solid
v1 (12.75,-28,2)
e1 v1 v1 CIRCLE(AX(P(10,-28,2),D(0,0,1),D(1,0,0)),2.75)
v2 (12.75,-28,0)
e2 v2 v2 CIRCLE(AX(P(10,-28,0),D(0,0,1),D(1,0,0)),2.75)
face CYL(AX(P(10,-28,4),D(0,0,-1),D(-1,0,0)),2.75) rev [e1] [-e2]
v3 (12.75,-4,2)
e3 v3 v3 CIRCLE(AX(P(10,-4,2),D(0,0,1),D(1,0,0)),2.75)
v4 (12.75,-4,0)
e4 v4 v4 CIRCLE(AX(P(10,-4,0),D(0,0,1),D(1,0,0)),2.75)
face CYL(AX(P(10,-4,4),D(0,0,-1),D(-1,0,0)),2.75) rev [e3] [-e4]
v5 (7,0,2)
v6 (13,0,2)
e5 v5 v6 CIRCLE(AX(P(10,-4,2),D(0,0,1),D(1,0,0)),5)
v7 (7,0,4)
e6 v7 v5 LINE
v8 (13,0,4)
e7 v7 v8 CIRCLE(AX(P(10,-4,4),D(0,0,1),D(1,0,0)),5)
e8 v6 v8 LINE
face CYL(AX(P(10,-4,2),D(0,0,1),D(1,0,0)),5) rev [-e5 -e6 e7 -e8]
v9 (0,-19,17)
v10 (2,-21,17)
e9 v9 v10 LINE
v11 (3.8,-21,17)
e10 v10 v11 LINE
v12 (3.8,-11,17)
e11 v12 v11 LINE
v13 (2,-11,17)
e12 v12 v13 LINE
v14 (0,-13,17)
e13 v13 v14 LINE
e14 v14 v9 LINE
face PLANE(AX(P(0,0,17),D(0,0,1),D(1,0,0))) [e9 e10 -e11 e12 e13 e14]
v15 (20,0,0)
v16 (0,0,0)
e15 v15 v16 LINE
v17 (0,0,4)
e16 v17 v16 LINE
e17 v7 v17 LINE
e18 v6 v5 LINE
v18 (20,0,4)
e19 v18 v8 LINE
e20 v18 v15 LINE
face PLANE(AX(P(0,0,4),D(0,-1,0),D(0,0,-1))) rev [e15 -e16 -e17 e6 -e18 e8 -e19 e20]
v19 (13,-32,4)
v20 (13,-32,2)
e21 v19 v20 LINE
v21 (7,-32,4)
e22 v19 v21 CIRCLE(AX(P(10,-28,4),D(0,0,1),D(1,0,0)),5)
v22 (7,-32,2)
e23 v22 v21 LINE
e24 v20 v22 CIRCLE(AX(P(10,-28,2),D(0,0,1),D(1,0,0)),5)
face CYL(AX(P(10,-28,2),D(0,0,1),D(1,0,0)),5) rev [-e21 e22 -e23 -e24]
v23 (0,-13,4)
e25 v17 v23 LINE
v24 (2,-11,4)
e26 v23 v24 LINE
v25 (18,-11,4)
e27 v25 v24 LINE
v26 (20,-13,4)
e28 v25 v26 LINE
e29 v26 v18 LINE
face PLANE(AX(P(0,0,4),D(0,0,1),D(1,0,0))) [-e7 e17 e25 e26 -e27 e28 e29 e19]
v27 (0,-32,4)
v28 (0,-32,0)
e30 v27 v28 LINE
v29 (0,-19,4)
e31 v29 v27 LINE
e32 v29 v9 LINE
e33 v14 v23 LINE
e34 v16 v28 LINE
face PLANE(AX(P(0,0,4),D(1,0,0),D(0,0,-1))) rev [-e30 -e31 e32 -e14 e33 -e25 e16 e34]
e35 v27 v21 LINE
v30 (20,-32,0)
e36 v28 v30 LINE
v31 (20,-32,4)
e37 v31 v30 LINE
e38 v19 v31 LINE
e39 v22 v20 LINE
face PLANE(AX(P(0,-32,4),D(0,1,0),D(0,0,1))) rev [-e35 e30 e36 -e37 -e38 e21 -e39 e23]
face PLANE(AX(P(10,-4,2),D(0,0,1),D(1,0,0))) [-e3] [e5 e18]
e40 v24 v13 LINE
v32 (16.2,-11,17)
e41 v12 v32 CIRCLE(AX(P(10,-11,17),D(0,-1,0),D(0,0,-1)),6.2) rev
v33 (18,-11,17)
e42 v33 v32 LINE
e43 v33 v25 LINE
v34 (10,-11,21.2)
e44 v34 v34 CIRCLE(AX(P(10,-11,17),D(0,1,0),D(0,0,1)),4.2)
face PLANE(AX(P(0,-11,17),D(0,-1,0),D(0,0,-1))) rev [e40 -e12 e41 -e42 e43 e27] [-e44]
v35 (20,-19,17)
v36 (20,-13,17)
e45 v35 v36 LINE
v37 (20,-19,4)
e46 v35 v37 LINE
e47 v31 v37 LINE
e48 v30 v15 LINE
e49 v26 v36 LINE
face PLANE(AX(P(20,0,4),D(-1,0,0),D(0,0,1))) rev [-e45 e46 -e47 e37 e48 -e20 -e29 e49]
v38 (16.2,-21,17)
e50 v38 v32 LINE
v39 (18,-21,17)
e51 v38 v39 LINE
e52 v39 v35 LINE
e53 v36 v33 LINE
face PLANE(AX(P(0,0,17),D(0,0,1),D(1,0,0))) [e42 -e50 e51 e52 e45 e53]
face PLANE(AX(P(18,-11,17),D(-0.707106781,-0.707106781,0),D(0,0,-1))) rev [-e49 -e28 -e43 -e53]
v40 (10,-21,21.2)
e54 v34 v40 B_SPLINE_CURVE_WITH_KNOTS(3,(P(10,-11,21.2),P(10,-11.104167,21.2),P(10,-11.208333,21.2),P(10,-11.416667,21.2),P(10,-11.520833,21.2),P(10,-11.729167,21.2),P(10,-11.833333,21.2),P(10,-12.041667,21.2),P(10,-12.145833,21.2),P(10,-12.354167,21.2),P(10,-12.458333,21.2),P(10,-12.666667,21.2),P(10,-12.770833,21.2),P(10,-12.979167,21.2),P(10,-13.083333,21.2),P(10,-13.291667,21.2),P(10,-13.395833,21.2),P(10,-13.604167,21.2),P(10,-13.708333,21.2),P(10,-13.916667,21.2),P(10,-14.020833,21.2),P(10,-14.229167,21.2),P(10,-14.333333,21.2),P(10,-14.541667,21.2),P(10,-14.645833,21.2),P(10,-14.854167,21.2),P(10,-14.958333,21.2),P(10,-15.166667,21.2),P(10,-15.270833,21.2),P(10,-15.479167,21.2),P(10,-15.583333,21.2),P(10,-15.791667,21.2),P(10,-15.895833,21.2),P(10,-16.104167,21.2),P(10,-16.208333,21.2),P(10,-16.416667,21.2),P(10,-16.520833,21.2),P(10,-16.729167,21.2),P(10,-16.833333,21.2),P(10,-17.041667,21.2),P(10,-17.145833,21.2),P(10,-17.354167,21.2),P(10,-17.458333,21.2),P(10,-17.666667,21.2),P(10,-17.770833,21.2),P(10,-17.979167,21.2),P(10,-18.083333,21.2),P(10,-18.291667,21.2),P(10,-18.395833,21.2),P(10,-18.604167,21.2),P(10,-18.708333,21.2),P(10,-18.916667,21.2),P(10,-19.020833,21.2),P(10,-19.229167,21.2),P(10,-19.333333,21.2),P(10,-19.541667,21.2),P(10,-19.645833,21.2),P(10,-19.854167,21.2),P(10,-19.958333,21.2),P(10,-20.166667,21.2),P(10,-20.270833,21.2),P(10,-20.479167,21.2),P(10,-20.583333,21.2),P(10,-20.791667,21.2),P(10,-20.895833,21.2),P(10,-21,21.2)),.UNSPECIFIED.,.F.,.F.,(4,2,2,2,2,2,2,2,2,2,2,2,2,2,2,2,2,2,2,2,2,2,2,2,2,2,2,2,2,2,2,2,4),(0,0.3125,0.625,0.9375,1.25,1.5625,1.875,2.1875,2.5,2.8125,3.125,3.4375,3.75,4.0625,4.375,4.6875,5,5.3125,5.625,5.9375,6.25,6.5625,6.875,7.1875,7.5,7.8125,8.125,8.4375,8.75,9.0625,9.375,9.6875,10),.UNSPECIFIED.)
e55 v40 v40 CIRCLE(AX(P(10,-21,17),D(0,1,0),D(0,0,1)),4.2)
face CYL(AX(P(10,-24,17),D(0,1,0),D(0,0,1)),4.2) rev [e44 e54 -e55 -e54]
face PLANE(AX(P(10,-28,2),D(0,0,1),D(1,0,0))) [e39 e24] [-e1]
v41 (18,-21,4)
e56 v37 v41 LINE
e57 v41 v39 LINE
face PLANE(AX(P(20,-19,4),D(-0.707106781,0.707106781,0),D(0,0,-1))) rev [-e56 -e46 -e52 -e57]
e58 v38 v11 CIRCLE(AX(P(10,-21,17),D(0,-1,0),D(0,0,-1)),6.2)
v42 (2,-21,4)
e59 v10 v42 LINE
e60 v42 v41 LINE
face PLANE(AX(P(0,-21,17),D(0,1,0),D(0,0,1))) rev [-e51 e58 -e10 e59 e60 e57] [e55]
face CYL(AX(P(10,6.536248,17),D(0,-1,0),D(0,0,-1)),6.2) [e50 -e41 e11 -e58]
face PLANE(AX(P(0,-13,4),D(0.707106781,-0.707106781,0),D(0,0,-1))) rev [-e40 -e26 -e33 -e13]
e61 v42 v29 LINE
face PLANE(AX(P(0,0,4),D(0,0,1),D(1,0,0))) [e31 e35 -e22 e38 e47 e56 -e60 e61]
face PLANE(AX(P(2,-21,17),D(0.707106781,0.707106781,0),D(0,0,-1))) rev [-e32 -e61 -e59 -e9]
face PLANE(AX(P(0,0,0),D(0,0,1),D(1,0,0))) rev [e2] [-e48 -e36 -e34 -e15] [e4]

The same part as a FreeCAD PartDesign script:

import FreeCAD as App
import Part
import Sketcher

V = App.Vector
Q = App.Units.Quantity


def edges_at(feature, points):
    """Names of the edges that pass closest to the given points."""
    edges = feature.Shape.Edges
    near = lambda p: min(range(len(edges)), key=lambda i: edges[i].distToShape(Part.Vertex(*p))[0])
    return sorted({f"Edge{near(p) + 1}" for p in points})


def add_polygon(sketch, points):
    """Adds a closed chain of lines whose ends are joined by coincident constraints."""
    first, n = sketch.GeometryCount, len(points)
    for a, b in zip(points, points[1:] + points[:1]):
        sketch.addGeometry(Part.LineSegment(App.Vector(*a, 0), App.Vector(*b, 0)), False)
    for i in range(n):
        sketch.addConstraint(Sketcher.Constraint("Coincident", first + i, 2, first + (i + 1) % n, 1))

doc = App.newDocument("Part")
params = doc.addObject("Spreadsheet::Sheet", "Params")
for row, (alias, value) in enumerate([
    ("sketch1_diameter", "5.5 mm"),
    ("sketch1_width", "20 mm"),
    ("sketch1_height", "32 mm"),
    ("pad1_length", "4 mm"),
    ("sketch2_width", "20 mm"),
    ("sketch2_height", "10 mm"),
    ("pad2_length", "13 mm"),
    ("sketch3_diameter", "12.4 mm"),
    ("pad3_length", "10 mm"),
    ("sketch4_diameter", "8.4 mm"),
    ("pocket1_length", "13 mm"),
    ("chamfer_size", "2 mm"),
    ("sketch5_diameter", "10 mm"),
    ("pocket2_length", "2 mm"),
], start=1):
    params.set(f"A{row}", alias)
    params.set(f"B{row}", "=" + value)
    params.setAlias(f"B{row}", alias)

body = doc.addObject("PartDesign::Body", "Body")

sketch1 = body.newObject("Sketcher::SketchObject", "Sketch")
sketch1.AttachmentSupport = (doc.getObject("XY_Plane"), [""])
sketch1.MapMode = "FlatFace"
add_polygon(sketch1, [(0, 0), (0, -32), (20, -32), (20, 0)])
sketch1.addGeometry(Part.Circle(V(10, -28, 0), V(0, 0, 1), 2.75), False)
sketch1.addGeometry(Part.Circle(V(10, -4, 0), V(0, 0, 1), 2.75), False)
sketch1.addConstraint([
    Sketcher.Constraint("Vertical", 0),
    Sketcher.Constraint("Horizontal", 1),
    Sketcher.Constraint("Vertical", 2),
    Sketcher.Constraint("Horizontal", 3),
    Sketcher.Constraint("Coincident", 3, 2, -1, 1),
    Sketcher.Constraint("Equal", 4, 5),
    Sketcher.Constraint("Vertical", 4, 3, 5, 3),
    Sketcher.Constraint("Diameter", 4, Q("5.5 mm")),
    Sketcher.Constraint("DistanceX", 1, 1, 1, 2, Q("20 mm")),
    Sketcher.Constraint("DistanceY", 0, 2, 0, 1, Q("32 mm")),
    Sketcher.Constraint("DistanceX", -1, 1, 4, 3, Q("10 mm")),
    Sketcher.Constraint("DistanceY", 4, 3, -1, 1, Q("28 mm")),
    Sketcher.Constraint("DistanceY", 5, 3, -1, 1, Q("4 mm")),
])
sketch1.setExpression("Constraints[11]", "Params.sketch1_diameter")
sketch1.setExpression("Constraints[12]", "Params.sketch1_width")
sketch1.setExpression("Constraints[13]", "Params.sketch1_height")
pad1 = body.newObject("PartDesign::Pad", "Pad")
pad1.Profile = sketch1
pad1.setExpression("Length", "Params.pad1_length")

sketch2 = body.newObject("Sketcher::SketchObject", "Sketch001")
sketch2.AttachmentSupport = (doc.getObject("XY_Plane"), [""])
sketch2.MapMode = "FlatFace"
sketch2.AttachmentOffset = App.Placement(V(0, 0, 4), App.Rotation())
add_polygon(sketch2, [(0, -11), (0, -21), (20, -21), (20, -11)])
sketch2.addConstraint([
    Sketcher.Constraint("Vertical", 0),
    Sketcher.Constraint("Horizontal", 1),
    Sketcher.Constraint("Vertical", 2),
    Sketcher.Constraint("Horizontal", 3),
    Sketcher.Constraint("PointOnObject", 0, 2, -2),
    Sketcher.Constraint("DistanceX", 1, 1, 1, 2, Q("20 mm")),
    Sketcher.Constraint("DistanceY", 0, 2, 0, 1, Q("10 mm")),
    Sketcher.Constraint("DistanceY", 0, 2, -1, 1, Q("21 mm")),
])
sketch2.setExpression("Constraints[9]", "Params.sketch2_width")
sketch2.setExpression("Constraints[10]", "Params.sketch2_height")
pad2 = body.newObject("PartDesign::Pad", "Pad001")
pad2.Profile = sketch2
pad2.setExpression("Length", "Params.pad2_length")

sketch3 = body.newObject("Sketcher::SketchObject", "Sketch002")
sketch3.AttachmentSupport = (doc.getObject("XZ_Plane"), [""])
sketch3.MapMode = "FlatFace"
sketch3.AttachmentOffset = App.Placement(V(0, 0, 21), App.Rotation())
sketch3.addGeometry(Part.Circle(V(10, 17, 0), V(0, 0, 1), 6.2), False)
sketch3.addConstraint([
    Sketcher.Constraint("Diameter", 0, Q("12.4 mm")),
    Sketcher.Constraint("DistanceX", -1, 1, 0, 3, Q("10 mm")),
    Sketcher.Constraint("DistanceY", -1, 1, 0, 3, Q("17 mm")),
])
sketch3.setExpression("Constraints[0]", "Params.sketch3_diameter")
pad3 = body.newObject("PartDesign::Pad", "Pad002")
pad3.Profile = sketch3
pad3.setExpression("Length", "Params.pad3_length")
pad3.Reversed = True

sketch4 = body.newObject("Sketcher::SketchObject", "Sketch003")
sketch4.AttachmentSupport = (doc.getObject("XZ_Plane"), [""])
sketch4.MapMode = "FlatFace"
sketch4.AttachmentOffset = App.Placement(V(0, 0, 11), App.Rotation())
sketch4.addGeometry(Part.Circle(V(10, 17, 0), V(0, 0, 1), 4.2), False)
sketch4.addConstraint([
    Sketcher.Constraint("Diameter", 0, Q("8.4 mm")),
    Sketcher.Constraint("DistanceX", -1, 1, 0, 3, Q("10 mm")),
    Sketcher.Constraint("DistanceY", -1, 1, 0, 3, Q("17 mm")),
])
sketch4.setExpression("Constraints[0]", "Params.sketch4_diameter")
pocket1 = body.newObject("PartDesign::Pocket", "Pocket")
pocket1.Profile = sketch4
pocket1.setExpression("Length", "Params.pocket1_length")
pocket1.Reversed = True
doc.recompute()

chamfer = body.newObject("PartDesign::Chamfer", "Chamfer")
chamfer.Base = (pocket1, edges_at(pocket1, [
    (0, -11, 10.5),
    (0, -21, 10.5),
    (20, -21, 10.5),
    (20, -11, 10.5),
]))
chamfer.setExpression("Size", "Params.chamfer_size")

sketch5 = body.newObject("Sketcher::SketchObject", "Sketch004")
sketch5.AttachmentSupport = (doc.getObject("XY_Plane"), [""])
sketch5.MapMode = "FlatFace"
sketch5.AttachmentOffset = App.Placement(V(0, 0, 4), App.Rotation())
sketch5.addGeometry([
    Part.Circle(V(10, -28, 0), V(0, 0, 1), 5),
    Part.Circle(V(10, -4, 0), V(0, 0, 1), 5),
], False)
sketch5.addConstraint([
    Sketcher.Constraint("Equal", 0, 1),
    Sketcher.Constraint("Vertical", 0, 3, 1, 3),
    Sketcher.Constraint("Diameter", 0, Q("10 mm")),
    Sketcher.Constraint("DistanceX", -1, 1, 0, 3, Q("10 mm")),
    Sketcher.Constraint("DistanceY", 0, 3, -1, 1, Q("28 mm")),
    Sketcher.Constraint("DistanceY", 1, 3, -1, 1, Q("4 mm")),
])
sketch5.setExpression("Constraints[2]", "Params.sketch5_diameter")
pocket2 = body.newObject("PartDesign::Pocket", "Pocket001")
pocket2.Profile = sketch5
pocket2.setExpression("Length", "Params.pocket2_length")

doc.recompute()
